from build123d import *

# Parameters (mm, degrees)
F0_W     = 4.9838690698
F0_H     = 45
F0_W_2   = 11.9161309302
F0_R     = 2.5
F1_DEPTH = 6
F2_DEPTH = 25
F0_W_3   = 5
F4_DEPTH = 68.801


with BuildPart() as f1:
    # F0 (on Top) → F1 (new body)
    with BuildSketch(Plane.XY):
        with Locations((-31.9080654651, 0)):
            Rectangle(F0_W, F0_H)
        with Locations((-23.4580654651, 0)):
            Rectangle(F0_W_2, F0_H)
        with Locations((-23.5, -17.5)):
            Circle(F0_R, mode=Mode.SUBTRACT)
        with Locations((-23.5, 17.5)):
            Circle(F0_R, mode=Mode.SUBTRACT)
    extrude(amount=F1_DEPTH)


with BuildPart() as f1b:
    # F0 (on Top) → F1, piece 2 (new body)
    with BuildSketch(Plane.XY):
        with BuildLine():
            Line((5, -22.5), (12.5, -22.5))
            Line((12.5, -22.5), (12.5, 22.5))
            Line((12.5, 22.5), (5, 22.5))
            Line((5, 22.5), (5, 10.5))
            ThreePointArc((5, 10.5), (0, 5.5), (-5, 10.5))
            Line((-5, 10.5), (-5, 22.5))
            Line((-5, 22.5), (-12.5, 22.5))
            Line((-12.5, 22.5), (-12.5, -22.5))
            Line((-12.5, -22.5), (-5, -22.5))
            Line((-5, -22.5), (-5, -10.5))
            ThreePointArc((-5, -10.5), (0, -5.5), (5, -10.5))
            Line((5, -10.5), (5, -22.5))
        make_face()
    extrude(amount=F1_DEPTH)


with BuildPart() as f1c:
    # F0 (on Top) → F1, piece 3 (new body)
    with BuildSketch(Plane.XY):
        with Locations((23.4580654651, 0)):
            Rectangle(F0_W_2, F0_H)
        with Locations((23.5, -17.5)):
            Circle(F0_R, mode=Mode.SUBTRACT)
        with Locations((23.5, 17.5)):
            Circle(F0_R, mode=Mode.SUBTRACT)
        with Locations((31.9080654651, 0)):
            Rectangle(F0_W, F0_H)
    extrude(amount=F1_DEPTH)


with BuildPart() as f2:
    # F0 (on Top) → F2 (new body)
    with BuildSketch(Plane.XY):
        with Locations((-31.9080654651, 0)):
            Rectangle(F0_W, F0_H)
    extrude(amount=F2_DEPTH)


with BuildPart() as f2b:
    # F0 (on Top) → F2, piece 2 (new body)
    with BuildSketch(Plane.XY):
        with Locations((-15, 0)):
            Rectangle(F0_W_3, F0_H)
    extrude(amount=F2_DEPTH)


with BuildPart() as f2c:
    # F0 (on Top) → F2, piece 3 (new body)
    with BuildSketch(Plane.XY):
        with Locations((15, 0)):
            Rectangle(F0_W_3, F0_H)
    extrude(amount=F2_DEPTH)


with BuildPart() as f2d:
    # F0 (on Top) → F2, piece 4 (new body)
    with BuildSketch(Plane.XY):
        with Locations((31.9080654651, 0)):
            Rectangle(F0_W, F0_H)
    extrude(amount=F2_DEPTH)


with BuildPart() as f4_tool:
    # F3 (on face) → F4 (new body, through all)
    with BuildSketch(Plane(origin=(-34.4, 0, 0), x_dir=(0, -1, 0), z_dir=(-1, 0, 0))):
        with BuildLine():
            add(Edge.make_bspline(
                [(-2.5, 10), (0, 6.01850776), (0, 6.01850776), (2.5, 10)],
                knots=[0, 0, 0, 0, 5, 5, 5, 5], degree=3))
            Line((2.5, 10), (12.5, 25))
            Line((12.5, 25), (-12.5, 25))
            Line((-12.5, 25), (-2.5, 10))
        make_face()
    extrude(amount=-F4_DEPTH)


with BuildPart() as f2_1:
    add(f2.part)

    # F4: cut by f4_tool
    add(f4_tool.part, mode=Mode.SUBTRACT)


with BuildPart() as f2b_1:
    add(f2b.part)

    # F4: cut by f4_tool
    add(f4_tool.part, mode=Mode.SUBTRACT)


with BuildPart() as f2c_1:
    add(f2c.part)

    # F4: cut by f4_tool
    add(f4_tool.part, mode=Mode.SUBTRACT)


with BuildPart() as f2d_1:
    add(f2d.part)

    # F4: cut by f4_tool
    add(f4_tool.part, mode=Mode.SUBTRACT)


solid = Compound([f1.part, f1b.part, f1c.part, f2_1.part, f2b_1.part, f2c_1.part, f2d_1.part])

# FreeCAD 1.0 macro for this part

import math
import FreeCAD as App
import Part
import Sketcher
from FreeCAD import Vector

doc = App.newDocument("Part")
params = doc.addObject("Spreadsheet::Sheet", "Params")
for row, (alias, value) in enumerate([
    ("sketch1_diameter", "5 mm"),
    ("sketch1_height", "45 mm"),
    ("sketch1_width", "16.9 mm"),
    ("pad1_length", "6 mm"),
    ("sketch2_radius", "5 mm"),
    ("sketch2_height", "45 mm"),
    ("sketch2_height2", "12 mm"),
    ("sketch2_width", "7.5 mm"),
    ("pad2_length", "6 mm"),
    ("sketch3_diameter", "5 mm"),
    ("sketch3_height", "45 mm"),
    ("sketch3_width", "16.9 mm"),
    ("pad3_length", "6 mm"),
    ("sketch4_height", "45 mm"),
    ("pad4_length", "25 mm"),
    ("sketch5_width", "5 mm"),
    ("sketch5_height", "45 mm"),
    ("pad5_length", "25 mm"),
    ("sketch6_width", "5 mm"),
    ("sketch6_height", "45 mm"),
    ("pad6_length", "25 mm"),
    ("sketch7_height", "45 mm"),
    ("pad7_length", "25 mm"),
    ("sketch8_width", "25 mm"),
    ("pad8_length", "68.801 mm"),
], start=1):
    params.set(f"A{row}", alias)
    params.set(f"B{row}", "=" + value)
    params.setAlias(f"B{row}", alias)

body = doc.addObject("PartDesign::Body", "Body")

sketch1 = body.newObject("Sketcher::SketchObject", "Sketch")
sketch1.AttachmentSupport = (doc.getObject("XY_Plane"), [""])
sketch1.MapMode = "FlatFace"
sketch1.addGeometry([
    Part.LineSegment(Vector(-34.4, 22.5, 0), Vector(-34.4, -22.5, 0)),
    Part.LineSegment(Vector(-34.4, -22.5, 0), Vector(-17.5, -22.5, 0)),
    Part.LineSegment(Vector(-17.5, -22.5, 0), Vector(-17.5, 22.5, 0)),
    Part.LineSegment(Vector(-17.5, 22.5, 0), Vector(-34.4, 22.5, 0)),
    Part.Circle(Vector(-23.5, -17.5, 0), Vector(0, 0, 1), 2.5),
    Part.Circle(Vector(-23.5, 17.5, 0), Vector(0, 0, 1), 2.5),
], False)
sketch1.addConstraint([
    Sketcher.Constraint("Coincident", 0, 2, 1, 1),
    Sketcher.Constraint("Coincident", 1, 2, 2, 1),
    Sketcher.Constraint("Coincident", 2, 2, 3, 1),
    Sketcher.Constraint("Coincident", 3, 2, 0, 1),
    Sketcher.Constraint("Vertical", 0),
    Sketcher.Constraint("Horizontal", 1),
    Sketcher.Constraint("Vertical", 2),
    Sketcher.Constraint("Horizontal", 3),
    Sketcher.Constraint("Equal", 4, 5),
    Sketcher.Constraint("Symmetric", 4, 3, 5, 3, -1),
    Sketcher.Constraint("Diameter", 4, 5.0),
    Sketcher.Constraint("DistanceY", 0, 2, 0, 1, 45.0),
    Sketcher.Constraint("DistanceX", 1, 1, 1, 2, 16.9),
    Sketcher.Constraint("DistanceY", 4, 3, 5, 3, 35.0),
    Sketcher.Constraint("DistanceY", 0, 2, 4, 3, 5.0),
    Sketcher.Constraint("DistanceX", 4, 3, 1, 2, 6.0),
    Sketcher.Constraint("DistanceX", 4, 3, -1, 1, 23.5),
])
sketch1.setExpression("Constraints[10]", "Params.sketch1_diameter")
sketch1.setExpression("Constraints[11]", "Params.sketch1_height")
sketch1.setExpression("Constraints[12]", "Params.sketch1_width")
pad1 = body.newObject("PartDesign::Pad", "Pad")
pad1.Profile = sketch1
pad1.setExpression("Length", "Params.pad1_length")
body2 = doc.addObject("PartDesign::Body", "Body001")

sketch2 = body2.newObject("Sketcher::SketchObject", "Sketch001")
sketch2.AttachmentSupport = (doc.getObject("XY_Plane001"), [""])
sketch2.MapMode = "FlatFace"
sketch2.addGeometry([
    Part.LineSegment(Vector(5, -22.5, 0), Vector(12.5, -22.5, 0)),
    Part.LineSegment(Vector(12.5, -22.5, 0), Vector(12.5, 22.5, 0)),
    Part.LineSegment(Vector(12.5, 22.5, 0), Vector(5, 22.5, 0)),
    Part.LineSegment(Vector(5, 22.5, 0), Vector(5, 10.5, 0)),
    Part.ArcOfCircle(Part.Circle(Vector(0, 10.5, 0), Vector(0, 0, 1), 5), math.radians(180), math.radians(360)),
    Part.LineSegment(Vector(-5, 10.5, 0), Vector(-5, 22.5, 0)),
    Part.LineSegment(Vector(-5, 22.5, 0), Vector(-12.5, 22.5, 0)),
    Part.LineSegment(Vector(-12.5, 22.5, 0), Vector(-12.5, -22.5, 0)),
    Part.LineSegment(Vector(-12.5, -22.5, 0), Vector(-5, -22.5, 0)),
    Part.LineSegment(Vector(-5, -22.5, 0), Vector(-5, -10.5, 0)),
    Part.ArcOfCircle(Part.Circle(Vector(0, -10.5, 0), Vector(0, 0, 1), 5), math.radians(0), math.radians(180)),
    Part.LineSegment(Vector(5, -10.5, 0), Vector(5, -22.5, 0)),
], False)
sketch2.addConstraint([
    Sketcher.Constraint("Coincident", 0, 2, 1, 1),
    Sketcher.Constraint("Coincident", 1, 2, 2, 1),
    Sketcher.Constraint("Coincident", 2, 2, 3, 1),
    Sketcher.Constraint("Tangent", 3, 2, 4, 2),
    Sketcher.Constraint("Tangent", 4, 1, 5, 1),
    Sketcher.Constraint("Coincident", 5, 2, 6, 1),
    Sketcher.Constraint("Coincident", 6, 2, 7, 1),
    Sketcher.Constraint("Coincident", 7, 2, 8, 1),
    Sketcher.Constraint("Coincident", 8, 2, 9, 1),
    Sketcher.Constraint("Tangent", 9, 2, 10, 2),
    Sketcher.Constraint("Tangent", 10, 1, 11, 1),
    Sketcher.Constraint("Coincident", 11, 2, 0, 1),
    Sketcher.Constraint("Horizontal", 0),
    Sketcher.Constraint("Vertical", 1),
    Sketcher.Constraint("Horizontal", 2),
    Sketcher.Constraint("Vertical", 3),
    Sketcher.Constraint("Vertical", 5),
    Sketcher.Constraint("Horizontal", 6),
    Sketcher.Constraint("Vertical", 7),
    Sketcher.Constraint("Horizontal", 8),
    Sketcher.Constraint("Vertical", 9),
    Sketcher.Constraint("Vertical", 11),
    Sketcher.Constraint("Equal", 4, 10),
    Sketcher.Constraint("Symmetric", 4, 3, 10, 3, -1, 1),
    Sketcher.Constraint("Symmetric", 0, 2, 6, 2, -1, 1),
    Sketcher.Constraint("Symmetric", 2, 2, 5, 2, -2),
    Sketcher.Constraint("Horizontal", 0, 2, 7, 2),
    Sketcher.Constraint("Radius", 4, 5.0),
    Sketcher.Constraint("DistanceY", 1, 1, 1, 2, 45.0),
    Sketcher.Constraint("DistanceY", 3, 2, 3, 1, 12.0),
    Sketcher.Constraint("DistanceX", 0, 1, 0, 2, 7.5),
])
sketch2.setExpression("Constraints[27]", "Params.sketch2_radius")
sketch2.setExpression("Constraints[28]", "Params.sketch2_height")
sketch2.setExpression("Constraints[29]", "Params.sketch2_height2")
sketch2.setExpression("Constraints[30]", "Params.sketch2_width")
pad2 = body2.newObject("PartDesign::Pad", "Pad001")
pad2.Profile = sketch2
pad2.setExpression("Length", "Params.pad2_length")
body3 = doc.addObject("PartDesign::Body", "Body002")

sketch3 = body3.newObject("Sketcher::SketchObject", "Sketch002")
sketch3.AttachmentSupport = (doc.getObject("XY_Plane002"), [""])
sketch3.MapMode = "FlatFace"
sketch3.addGeometry([
    Part.LineSegment(Vector(17.5, 22.5, 0), Vector(17.5, -22.5, 0)),
    Part.LineSegment(Vector(17.5, -22.5, 0), Vector(34.4, -22.5, 0)),
    Part.LineSegment(Vector(34.4, -22.5, 0), Vector(34.4, 22.5, 0)),
    Part.LineSegment(Vector(34.4, 22.5, 0), Vector(17.5, 22.5, 0)),
    Part.Circle(Vector(23.5, -17.5, 0), Vector(0, 0, 1), 2.5),
    Part.Circle(Vector(23.5, 17.5, 0), Vector(0, 0, 1), 2.5),
], False)
sketch3.addConstraint([
    Sketcher.Constraint("Coincident", 0, 2, 1, 1),
    Sketcher.Constraint("Coincident", 1, 2, 2, 1),
    Sketcher.Constraint("Coincident", 2, 2, 3, 1),
    Sketcher.Constraint("Coincident", 3, 2, 0, 1),
    Sketcher.Constraint("Vertical", 0),
    Sketcher.Constraint("Horizontal", 1),
    Sketcher.Constraint("Vertical", 2),
    Sketcher.Constraint("Horizontal", 3),
    Sketcher.Constraint("Equal", 4, 5),
    Sketcher.Constraint("Symmetric", 4, 3, 5, 3, -1),
    Sketcher.Constraint("Diameter", 4, 5.0),
    Sketcher.Constraint("DistanceY", 0, 2, 0, 1, 45.0),
    Sketcher.Constraint("DistanceX", 1, 1, 1, 2, 16.9),
    Sketcher.Constraint("DistanceY", 4, 3, 5, 3, 35.0),
    Sketcher.Constraint("DistanceX", 0, 2, 4, 3, 6.0),
    Sketcher.Constraint("DistanceY", 0, 2, 4, 3, 5.0),
    Sketcher.Constraint("DistanceX", -1, 1, 4, 3, 23.5),
])
sketch3.setExpression("Constraints[10]", "Params.sketch3_diameter")
sketch3.setExpression("Constraints[11]", "Params.sketch3_height")
sketch3.setExpression("Constraints[12]", "Params.sketch3_width")
pad3 = body3.newObject("PartDesign::Pad", "Pad002")
pad3.Profile = sketch3
pad3.setExpression("Length", "Params.pad3_length")
body4 = doc.addObject("PartDesign::Body", "Body003")

sketch4 = body4.newObject("Sketcher::SketchObject", "Sketch003")
sketch4.AttachmentSupport = (doc.getObject("XY_Plane003"), [""])
sketch4.MapMode = "FlatFace"
sketch4.addGeometry([
    Part.LineSegment(Vector(-34.4, 22.5, 0), Vector(-34.4, -22.5, 0)),
    Part.LineSegment(Vector(-34.4, -22.5, 0), Vector(-29.416131, -22.5, 0)),
    Part.LineSegment(Vector(-29.416131, -22.5, 0), Vector(-29.416131, 22.5, 0)),
    Part.LineSegment(Vector(-29.416131, 22.5, 0), Vector(-34.4, 22.5, 0)),
], False)
sketch4.addConstraint([
    Sketcher.Constraint("Coincident", 0, 2, 1, 1),
    Sketcher.Constraint("Coincident", 1, 2, 2, 1),
    Sketcher.Constraint("Coincident", 2, 2, 3, 1),
    Sketcher.Constraint("Coincident", 3, 2, 0, 1),
    Sketcher.Constraint("Vertical", 0),
    Sketcher.Constraint("Horizontal", 1),
    Sketcher.Constraint("Vertical", 2),
    Sketcher.Constraint("Horizontal", 3),
    Sketcher.Constraint("DistanceY", 0, 2, 0, 1, 45.0),
    Sketcher.Constraint("DistanceX", 0, 2, -1, 1, 34.4),
    Sketcher.Constraint("DistanceY", 0, 2, -1, 1, 22.5),
    Sketcher.Constraint("DistanceX", 1, 1, 1, 2, 4.983869),
])
sketch4.setExpression("Constraints[8]", "Params.sketch4_height")
pad4 = body4.newObject("PartDesign::Pad", "Pad003")
pad4.Profile = sketch4
pad4.setExpression("Length", "Params.pad4_length")
body5 = doc.addObject("PartDesign::Body", "Body004")

sketch5 = body5.newObject("Sketcher::SketchObject", "Sketch004")
sketch5.AttachmentSupport = (doc.getObject("XY_Plane004"), [""])
sketch5.MapMode = "FlatFace"
sketch5.addGeometry([
    Part.LineSegment(Vector(-17.5, 22.5, 0), Vector(-17.5, -22.5, 0)),
    Part.LineSegment(Vector(-17.5, -22.5, 0), Vector(-12.5, -22.5, 0)),
    Part.LineSegment(Vector(-12.5, -22.5, 0), Vector(-12.5, 22.5, 0)),
    Part.LineSegment(Vector(-12.5, 22.5, 0), Vector(-17.5, 22.5, 0)),
], False)
sketch5.addConstraint([
    Sketcher.Constraint("Coincident", 0, 2, 1, 1),
    Sketcher.Constraint("Coincident", 1, 2, 2, 1),
    Sketcher.Constraint("Coincident", 2, 2, 3, 1),
    Sketcher.Constraint("Coincident", 3, 2, 0, 1),
    Sketcher.Constraint("Vertical", 0),
    Sketcher.Constraint("Horizontal", 1),
    Sketcher.Constraint("Vertical", 2),
    Sketcher.Constraint("Horizontal", 3),
    Sketcher.Constraint("DistanceX", 1, 1, 1, 2, 5.0),
    Sketcher.Constraint("DistanceY", 0, 2, 0, 1, 45.0),
    Sketcher.Constraint("DistanceX", 0, 2, -1, 1, 17.5),
    Sketcher.Constraint("DistanceY", 0, 2, -1, 1, 22.5),
])
sketch5.setExpression("Constraints[8]", "Params.sketch5_width")
sketch5.setExpression("Constraints[9]", "Params.sketch5_height")
pad5 = body5.newObject("PartDesign::Pad", "Pad004")
pad5.Profile = sketch5
pad5.setExpression("Length", "Params.pad5_length")
body6 = doc.addObject("PartDesign::Body", "Body005")

sketch6 = body6.newObject("Sketcher::SketchObject", "Sketch005")
sketch6.AttachmentSupport = (doc.getObject("XY_Plane005"), [""])
sketch6.MapMode = "FlatFace"
sketch6.addGeometry([
    Part.LineSegment(Vector(12.5, 22.5, 0), Vector(12.5, -22.5, 0)),
    Part.LineSegment(Vector(12.5, -22.5, 0), Vector(17.5, -22.5, 0)),
    Part.LineSegment(Vector(17.5, -22.5, 0), Vector(17.5, 22.5, 0)),
    Part.LineSegment(Vector(17.5, 22.5, 0), Vector(12.5, 22.5, 0)),
], False)
sketch6.addConstraint([
    Sketcher.Constraint("Coincident", 0, 2, 1, 1),
    Sketcher.Constraint("Coincident", 1, 2, 2, 1),
    Sketcher.Constraint("Coincident", 2, 2, 3, 1),
    Sketcher.Constraint("Coincident", 3, 2, 0, 1),
    Sketcher.Constraint("Vertical", 0),
    Sketcher.Constraint("Horizontal", 1),
    Sketcher.Constraint("Vertical", 2),
    Sketcher.Constraint("Horizontal", 3),
    Sketcher.Constraint("DistanceX", 1, 1, 1, 2, 5.0),
    Sketcher.Constraint("DistanceY", 0, 2, 0, 1, 45.0),
    Sketcher.Constraint("DistanceX", -1, 1, 0, 2, 12.5),
    Sketcher.Constraint("DistanceY", 0, 2, -1, 1, 22.5),
])
sketch6.setExpression("Constraints[8]", "Params.sketch6_width")
sketch6.setExpression("Constraints[9]", "Params.sketch6_height")
pad6 = body6.newObject("PartDesign::Pad", "Pad005")
pad6.Profile = sketch6
pad6.setExpression("Length", "Params.pad6_length")
body7 = doc.addObject("PartDesign::Body", "Body006")

sketch7 = body7.newObject("Sketcher::SketchObject", "Sketch006")
sketch7.AttachmentSupport = (doc.getObject("XY_Plane006"), [""])
sketch7.MapMode = "FlatFace"
sketch7.addGeometry([
    Part.LineSegment(Vector(29.416131, 22.5, 0), Vector(29.416131, -22.5, 0)),
    Part.LineSegment(Vector(29.416131, -22.5, 0), Vector(34.4, -22.5, 0)),
    Part.LineSegment(Vector(34.4, -22.5, 0), Vector(34.4, 22.5, 0)),
    Part.LineSegment(Vector(34.4, 22.5, 0), Vector(29.416131, 22.5, 0)),
], False)
sketch7.addConstraint([
    Sketcher.Constraint("Coincident", 0, 2, 1, 1),
    Sketcher.Constraint("Coincident", 1, 2, 2, 1),
    Sketcher.Constraint("Coincident", 2, 2, 3, 1),
    Sketcher.Constraint("Coincident", 3, 2, 0, 1),
    Sketcher.Constraint("Vertical", 0),
    Sketcher.Constraint("Horizontal", 1),
    Sketcher.Constraint("Vertical", 2),
    Sketcher.Constraint("Horizontal", 3),
    Sketcher.Constraint("DistanceY", 0, 2, 0, 1, 45.0),
    Sketcher.Constraint("DistanceY", 0, 2, -1, 1, 22.5),
    Sketcher.Constraint("DistanceX", -1, 1, 1, 2, 34.4),
    Sketcher.Constraint("DistanceX", 1, 1, 1, 2, 4.983869),
])
sketch7.setExpression("Constraints[8]", "Params.sketch7_height")
pad7 = body7.newObject("PartDesign::Pad", "Pad006")
pad7.Profile = sketch7
pad7.setExpression("Length", "Params.pad7_length")
body8 = doc.addObject("PartDesign::Body", "Body007")

sketch8 = body8.newObject("Sketcher::SketchObject", "Sketch007")
sketch8.AttachmentSupport = (doc.getObject("YZ_Plane007"), [""])
sketch8.MapMode = "FlatFace"
sketch8.AttachmentOffset = App.Placement(Vector(0, 0, -34.4), App.Rotation())
sketch8.addGeometry([
    Part.BSplineCurve([Vector(2.5, 10, 0), Vector(0, 6.018508, 0), Vector(0, 6.018508, 0), Vector(-2.5, 10, 0)], [4, 4], [0, 5], False, 3, [1, 1, 1, 1], False),
    Part.LineSegment(Vector(-2.5, 10, 0), Vector(-12.5, 25, 0)),
    Part.LineSegment(Vector(-12.5, 25, 0), Vector(12.5, 25, 0)),
    Part.LineSegment(Vector(12.5, 25, 0), Vector(2.5, 10, 0)),
], False)
sketch8.addConstraint([
    Sketcher.Constraint("Block", 0),
    Sketcher.Constraint("Coincident", 0, 2, 1, 1),
    Sketcher.Constraint("Coincident", 1, 2, 2, 1),
    Sketcher.Constraint("Coincident", 2, 2, 3, 1),
    Sketcher.Constraint("Coincident", 3, 2, 0, 1),
    Sketcher.Constraint("Horizontal", 2),
    Sketcher.Constraint("DistanceX", 2, 1, 2, 2, 25.0),
    Sketcher.Constraint("DistanceY", -1, 1, 1, 2, 25.0),
    Sketcher.Constraint("DistanceX", 3, 2, 2, 2, 10.0),
])
sketch8.setExpression("Constraints[6]", "Params.sketch8_width")
pad8 = body8.newObject("PartDesign::Pad", "Pad007")
pad8.Profile = sketch8
pad8.setExpression("Length", "Params.pad8_length")
doc.recompute()

body9 = doc.addObject("PartDesign::Body", "Body008")
body9.BaseFeature = body8
boolean = body4.newObject("PartDesign::Boolean", "Boolean")
boolean.Type = "Cut"
boolean.addObjects([body9])
doc.recompute()

body10 = doc.addObject("PartDesign::Body", "Body009")
body10.BaseFeature = body8
boolean2 = body5.newObject("PartDesign::Boolean", "Boolean001")
boolean2.Type = "Cut"
boolean2.addObjects([body10])
doc.recompute()

body11 = doc.addObject("PartDesign::Body", "Body010")
body11.BaseFeature = body8
boolean3 = body6.newObject("PartDesign::Boolean", "Boolean002")
boolean3.Type = "Cut"
boolean3.addObjects([body11])
doc.recompute()

boolean4 = body7.newObject("PartDesign::Boolean", "Boolean003")
boolean4.Type = "Cut"
boolean4.addObjects([body8])

doc.recompute()
